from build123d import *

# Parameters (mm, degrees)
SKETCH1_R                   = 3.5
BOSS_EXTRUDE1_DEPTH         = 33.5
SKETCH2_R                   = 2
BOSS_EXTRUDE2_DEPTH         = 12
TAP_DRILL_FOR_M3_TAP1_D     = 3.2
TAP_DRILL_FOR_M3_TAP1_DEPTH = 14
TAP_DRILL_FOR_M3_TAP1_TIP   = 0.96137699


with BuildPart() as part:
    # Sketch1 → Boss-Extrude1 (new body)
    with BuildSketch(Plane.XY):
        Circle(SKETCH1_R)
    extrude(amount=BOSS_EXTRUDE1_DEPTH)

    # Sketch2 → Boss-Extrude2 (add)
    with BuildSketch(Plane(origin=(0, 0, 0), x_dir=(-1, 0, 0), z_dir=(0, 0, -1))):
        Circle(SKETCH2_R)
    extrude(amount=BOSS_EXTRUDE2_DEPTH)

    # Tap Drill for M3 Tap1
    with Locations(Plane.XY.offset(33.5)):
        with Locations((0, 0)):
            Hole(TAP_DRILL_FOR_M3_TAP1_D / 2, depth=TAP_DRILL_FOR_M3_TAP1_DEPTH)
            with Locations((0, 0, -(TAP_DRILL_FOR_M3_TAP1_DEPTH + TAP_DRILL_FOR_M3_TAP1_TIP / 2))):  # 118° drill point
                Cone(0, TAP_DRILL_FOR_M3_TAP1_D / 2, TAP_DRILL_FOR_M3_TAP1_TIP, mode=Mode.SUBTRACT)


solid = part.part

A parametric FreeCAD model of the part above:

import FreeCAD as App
import Part
import Sketcher

V = App.Vector
Q = App.Units.Quantity

doc = App.newDocument("Part")
body = doc.addObject("PartDesign::Body", "Body")

sketch1 = body.newObject("Sketcher::SketchObject", "Sketch")
sketch1.AttachmentSupport = (doc.getObject("XY_Plane"), [""])
sketch1.MapMode = "FlatFace"
sketch1.addGeometry(Part.Circle(V(0, 0, 0), V(0, 0, 1), 3.5), False)
sketch1.addConstraint([
    Sketcher.Constraint("Coincident", 0, 3, -1, 1),
    Sketcher.Constraint("Diameter", 0, Q("7 mm")),
])
pad1 = body.newObject("PartDesign::Pad", "Pad")
pad1.Profile = sketch1
pad1.Length = 33.5

sketch2 = body.newObject("Sketcher::SketchObject", "Sketch001")
sketch2.AttachmentSupport = (doc.getObject("XY_Plane"), [""])
sketch2.MapMode = "FlatFace"
sketch2.addGeometry(Part.Circle(V(0, 0, 0), V(0, 0, 1), 2), False)
sketch2.addConstraint([
    Sketcher.Constraint("Coincident", 0, 3, -1, 1),
    Sketcher.Constraint("Diameter", 0, Q("4 mm")),
])
pad2 = body.newObject("PartDesign::Pad", "Pad001")
pad2.Profile = sketch2
pad2.Length = 12
pad2.Reversed = True

sketch3 = body.newObject("Sketcher::SketchObject", "Sketch002")
sketch3.AttachmentSupport = (doc.getObject("XY_Plane"), [""])
sketch3.MapMode = "FlatFace"
sketch3.AttachmentOffset = App.Placement(V(0, 0, 33.5), App.Rotation())
sketch3.addGeometry(Part.Circle(V(0, 0, 0), V(0, 0, 1), 1.6), False)
sketch3.addConstraint([
    Sketcher.Constraint("Coincident", 0, 3, -1, 1),
    Sketcher.Constraint("Diameter", 0, Q("3.2 mm")),
])
doc.recompute()
hole = body.newObject("PartDesign::Hole", "Hole")
hole.Profile = sketch3
hole.ThreadType = "None"
hole.Diameter = 3.2
hole.DepthType = "Dimension"
hole.Depth = 14
hole.DrillPoint = "Angled"
hole.DrillPointAngle = 118

doc.recompute()
